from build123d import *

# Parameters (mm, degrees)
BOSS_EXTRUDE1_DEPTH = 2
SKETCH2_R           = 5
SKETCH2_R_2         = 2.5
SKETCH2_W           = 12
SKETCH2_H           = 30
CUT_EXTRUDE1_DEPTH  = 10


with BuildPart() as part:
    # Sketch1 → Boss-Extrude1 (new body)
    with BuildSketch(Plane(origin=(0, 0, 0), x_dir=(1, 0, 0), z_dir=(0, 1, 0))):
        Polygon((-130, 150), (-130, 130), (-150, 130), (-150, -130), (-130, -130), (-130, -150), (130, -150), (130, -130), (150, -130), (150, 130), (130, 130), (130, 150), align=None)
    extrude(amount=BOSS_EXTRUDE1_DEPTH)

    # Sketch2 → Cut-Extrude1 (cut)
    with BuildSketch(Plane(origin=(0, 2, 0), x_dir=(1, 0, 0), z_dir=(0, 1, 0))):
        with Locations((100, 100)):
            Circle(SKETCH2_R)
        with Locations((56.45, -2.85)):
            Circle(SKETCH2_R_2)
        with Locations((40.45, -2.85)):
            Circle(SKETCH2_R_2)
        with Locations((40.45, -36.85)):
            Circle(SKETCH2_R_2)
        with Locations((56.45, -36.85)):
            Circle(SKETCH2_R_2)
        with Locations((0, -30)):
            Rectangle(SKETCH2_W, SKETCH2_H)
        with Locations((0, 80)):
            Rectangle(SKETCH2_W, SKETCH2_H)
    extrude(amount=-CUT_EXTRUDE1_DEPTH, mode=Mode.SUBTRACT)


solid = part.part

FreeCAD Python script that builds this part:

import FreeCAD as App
import Part
import Sketcher

V = App.Vector
Q = App.Units.Quantity

doc = App.newDocument("Part")
body = doc.addObject("PartDesign::Body", "Body")

# Sketch on XZ plane
sketch1 = doc.addObject("Sketcher::SketchObject", "Sketch")
body.addObject(sketch1)
sketch1.AttachmentSupport = (doc.XZ_Plane, [""])
sketch1.MapMode = "FlatFace"
sketch1.addGeometry(Part.LineSegment(V(-130, -150, 0), V(-130, -130, 0)), False)
sketch1.addGeometry(Part.LineSegment(V(-130, -130, 0), V(-150, -130, 0)), False)
sketch1.addGeometry(Part.LineSegment(V(-150, -130, 0), V(-150, 130, 0)), False)
sketch1.addGeometry(Part.LineSegment(V(-150, 130, 0), V(-130, 130, 0)), False)
sketch1.addGeometry(Part.LineSegment(V(-130, 130, 0), V(-130, 150, 0)), False)
sketch1.addGeometry(Part.LineSegment(V(-130, 150, 0), V(130, 150, 0)), False)
sketch1.addGeometry(Part.LineSegment(V(130, 150, 0), V(130, 130, 0)), False)
sketch1.addGeometry(Part.LineSegment(V(130, 130, 0), V(150, 130, 0)), False)
sketch1.addGeometry(Part.LineSegment(V(150, 130, 0), V(150, -130, 0)), False)
sketch1.addGeometry(Part.LineSegment(V(150, -130, 0), V(130, -130, 0)), False)
sketch1.addGeometry(Part.LineSegment(V(130, -130, 0), V(130, -150, 0)), False)
sketch1.addGeometry(Part.LineSegment(V(130, -150, 0), V(-130, -150, 0)), False)
sketch1.addConstraint(Sketcher.Constraint("Coincident", 0, 2, 1, 1))
sketch1.addConstraint(Sketcher.Constraint("Coincident", 1, 2, 2, 1))
sketch1.addConstraint(Sketcher.Constraint("Coincident", 2, 2, 3, 1))
sketch1.addConstraint(Sketcher.Constraint("Coincident", 3, 2, 4, 1))
sketch1.addConstraint(Sketcher.Constraint("Coincident", 4, 2, 5, 1))
sketch1.addConstraint(Sketcher.Constraint("Coincident", 5, 2, 6, 1))
sketch1.addConstraint(Sketcher.Constraint("Coincident", 6, 2, 7, 1))
sketch1.addConstraint(Sketcher.Constraint("Coincident", 7, 2, 8, 1))
sketch1.addConstraint(Sketcher.Constraint("Coincident", 8, 2, 9, 1))
sketch1.addConstraint(Sketcher.Constraint("Coincident", 9, 2, 10, 1))
sketch1.addConstraint(Sketcher.Constraint("Coincident", 10, 2, 11, 1))
sketch1.addConstraint(Sketcher.Constraint("Coincident", 11, 2, 0, 1))
sketch1.addConstraint(Sketcher.Constraint("Vertical", 0))
sketch1.addConstraint(Sketcher.Constraint("Horizontal", 1))
sketch1.addConstraint(Sketcher.Constraint("Vertical", 2))
sketch1.addConstraint(Sketcher.Constraint("Horizontal", 3))
sketch1.addConstraint(Sketcher.Constraint("Vertical", 4))
sketch1.addConstraint(Sketcher.Constraint("Horizontal", 5))
sketch1.addConstraint(Sketcher.Constraint("Vertical", 6))
sketch1.addConstraint(Sketcher.Constraint("Horizontal", 7))
sketch1.addConstraint(Sketcher.Constraint("Vertical", 8))
sketch1.addConstraint(Sketcher.Constraint("Horizontal", 9))
sketch1.addConstraint(Sketcher.Constraint("Vertical", 10))
sketch1.addConstraint(Sketcher.Constraint("Horizontal", 11))
sketch1.addConstraint(Sketcher.Constraint("Symmetric", 0, 2, 6, 2, -1, 1))
sketch1.addConstraint(Sketcher.Constraint("Symmetric", 2, 2, 8, 2, -1, 1))
sketch1.addConstraint(Sketcher.Constraint("Symmetric", 4, 2, 10, 2, -1, 1))
sketch1.addConstraint(Sketcher.Constraint("Symmetric", 3, 2, 6, 2, -2))
sketch1.addConstraint(Sketcher.Constraint("Equal", 9, 0))
sketch1.addConstraint(Sketcher.Constraint("Equal", 11, 2))
sketch1.addConstraint(Sketcher.Constraint("DistanceX", 1, 2, 1, 1, Q("20 mm")))
sketch1.addConstraint(Sketcher.Constraint("DistanceX", 5, 1, 5, 2, Q("260 mm")))
pad1 = doc.addObject("PartDesign::Pad", "Pad")
body.addObject(pad1)
pad1.Profile = sketch1
pad1.Length = 2
pad1.Reversed = True

# Sketch on XZ plane
sketch2 = doc.addObject("Sketcher::SketchObject", "Sketch001")
body.addObject(sketch2)
sketch2.AttachmentSupport = (doc.XZ_Plane, [""])
sketch2.MapMode = "FlatFace"
sketch2.AttachmentOffset = App.Placement(V(0, 0, -2), App.Rotation())
sketch2.addGeometry(Part.Circle(V(100, -100, 0), V(0, 0, 1), 5), False)
sketch2.addGeometry(Part.Circle(V(56.5, 2.9, 0), V(0, 0, 1), 2.5), False)
sketch2.addGeometry(Part.Circle(V(40.5, 2.9, 0), V(0, 0, 1), 2.5), False)
sketch2.addGeometry(Part.Circle(V(40.5, 36.9, 0), V(0, 0, 1), 2.5), False)
sketch2.addGeometry(Part.Circle(V(56.5, 36.9, 0), V(0, 0, 1), 2.5), False)
sketch2.addGeometry(Part.LineSegment(V(-6, 15, 0), V(-6, 45, 0)), False)
sketch2.addGeometry(Part.LineSegment(V(-6, 45, 0), V(6, 45, 0)), False)
sketch2.addGeometry(Part.LineSegment(V(6, 45, 0), V(6, 15, 0)), False)
sketch2.addGeometry(Part.LineSegment(V(6, 15, 0), V(-6, 15, 0)), False)
sketch2.addGeometry(Part.LineSegment(V(-6, -95, 0), V(-6, -65, 0)), False)
sketch2.addGeometry(Part.LineSegment(V(-6, -65, 0), V(6, -65, 0)), False)
sketch2.addGeometry(Part.LineSegment(V(6, -65, 0), V(6, -95, 0)), False)
sketch2.addGeometry(Part.LineSegment(V(6, -95, 0), V(-6, -95, 0)), False)
sketch2.addConstraint(Sketcher.Constraint("Coincident", 5, 2, 6, 1))
sketch2.addConstraint(Sketcher.Constraint("Coincident", 6, 2, 7, 1))
sketch2.addConstraint(Sketcher.Constraint("Coincident", 7, 2, 8, 1))
sketch2.addConstraint(Sketcher.Constraint("Coincident", 8, 2, 5, 1))
sketch2.addConstraint(Sketcher.Constraint("Coincident", 9, 2, 10, 1))
sketch2.addConstraint(Sketcher.Constraint("Coincident", 10, 2, 11, 1))
sketch2.addConstraint(Sketcher.Constraint("Coincident", 11, 2, 12, 1))
sketch2.addConstraint(Sketcher.Constraint("Coincident", 12, 2, 9, 1))
sketch2.addConstraint(Sketcher.Constraint("Vertical", 5))
sketch2.addConstraint(Sketcher.Constraint("Horizontal", 6))
sketch2.addConstraint(Sketcher.Constraint("Vertical", 7))
sketch2.addConstraint(Sketcher.Constraint("Horizontal", 8))
sketch2.addConstraint(Sketcher.Constraint("Vertical", 9))
sketch2.addConstraint(Sketcher.Constraint("Horizontal", 10))
sketch2.addConstraint(Sketcher.Constraint("Vertical", 11))
sketch2.addConstraint(Sketcher.Constraint("Horizontal", 12))
sketch2.addConstraint(Sketcher.Constraint("Equal", 1, 2))
sketch2.addConstraint(Sketcher.Constraint("Equal", 2, 3))
sketch2.addConstraint(Sketcher.Constraint("Equal", 3, 4))
sketch2.addConstraint(Sketcher.Constraint("Horizontal", 1, 3, 2, 3))
sketch2.addConstraint(Sketcher.Constraint("Horizontal", 3, 3, 4, 3))
sketch2.addConstraint(Sketcher.Constraint("Vertical", 2, 3, 3, 3))
sketch2.addConstraint(Sketcher.Constraint("Vertical", 1, 3, 4, 3))
sketch2.addConstraint(Sketcher.Constraint("Vertical", 8, 2, 9, 2))
sketch2.addConstraint(Sketcher.Constraint("Vertical", 7, 2, 10, 2))
sketch2.addConstraint(Sketcher.Constraint("Equal", 7, 9))
sketch2.addConstraint(Sketcher.Constraint("Diameter", 0, Q("10 mm")))
sketch2.addConstraint(Sketcher.Constraint("Diameter", 1, Q("5 mm")))
sketch2.addConstraint(Sketcher.Constraint("DistanceX", 6, 1, 6, 2, Q("12 mm")))
sketch2.addConstraint(Sketcher.Constraint("DistanceY", 5, 1, 5, 2, Q("30 mm")))
sketch2.addConstraint(Sketcher.Constraint("DistanceX", -1, 1, 0, 3, Q("100 mm")))
sketch2.addConstraint(Sketcher.Constraint("DistanceY", 0, 3, -1, 1, Q("100 mm")))
sketch2.addConstraint(Sketcher.Constraint("DistanceX", 5, 2, -1, 1, Q("6 mm")))
sketch2.addConstraint(Sketcher.Constraint("DistanceY", -1, 1, 5, 2, Q("45 mm")))
sketch2.addConstraint(Sketcher.Constraint("DistanceY", 9, 2, -1, 1, Q("65 mm")))
sketch2.addConstraint(Sketcher.Constraint("DistanceX", 2, 3, 1, 3, Q("16 mm")))
sketch2.addConstraint(Sketcher.Constraint("DistanceY", 2, 3, 3, 3, Q("34 mm")))
sketch2.addConstraint(Sketcher.Constraint("DistanceX", -1, 1, 1, 3, Q("56.45 mm")))
sketch2.addConstraint(Sketcher.Constraint("DistanceY", -1, 1, 1, 3, Q("2.85 mm")))
pocket1 = doc.addObject("PartDesign::Pocket", "Pocket")
body.addObject(pocket1)
pocket1.Profile = sketch2
pocket1.Length = 10
pocket1.Reversed = True

doc.recompute()
